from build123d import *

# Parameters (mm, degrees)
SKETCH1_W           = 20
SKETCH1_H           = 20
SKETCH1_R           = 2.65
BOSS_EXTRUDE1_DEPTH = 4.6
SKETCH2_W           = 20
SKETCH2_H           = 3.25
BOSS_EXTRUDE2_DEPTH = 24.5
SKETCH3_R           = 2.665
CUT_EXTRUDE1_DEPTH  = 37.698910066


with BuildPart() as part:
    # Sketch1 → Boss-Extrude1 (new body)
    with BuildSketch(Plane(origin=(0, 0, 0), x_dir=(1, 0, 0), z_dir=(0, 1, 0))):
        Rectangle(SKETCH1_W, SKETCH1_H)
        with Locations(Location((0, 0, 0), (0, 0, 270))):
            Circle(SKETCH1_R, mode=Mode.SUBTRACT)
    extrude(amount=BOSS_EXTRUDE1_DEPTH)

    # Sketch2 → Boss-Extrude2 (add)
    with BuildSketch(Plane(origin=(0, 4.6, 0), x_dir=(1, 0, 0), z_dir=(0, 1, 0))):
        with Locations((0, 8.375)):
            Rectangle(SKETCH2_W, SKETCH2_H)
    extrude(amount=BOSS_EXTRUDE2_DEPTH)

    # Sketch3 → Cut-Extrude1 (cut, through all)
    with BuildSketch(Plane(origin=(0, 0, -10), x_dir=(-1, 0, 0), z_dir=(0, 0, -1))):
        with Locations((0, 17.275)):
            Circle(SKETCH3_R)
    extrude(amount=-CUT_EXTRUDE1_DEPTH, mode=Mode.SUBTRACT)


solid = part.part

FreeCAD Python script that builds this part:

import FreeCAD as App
import Part
import Sketcher
Q = App.Units.Quantity

doc = App.newDocument("Part")
body = doc.addObject("PartDesign::Body", "Body")

# Sketch on XZ plane
sketch1 = body.newObject("Sketcher::SketchObject", "Sketch")
sketch1.AttachmentSupport = (doc.getObject("XZ_Plane"), [""])
sketch1.MapMode = "FlatFace"
sketch1.addGeometry([
    Part.LineSegment(App.Vector(-10, -10, 0), App.Vector(-10, 10, 0)),  # 0
    Part.LineSegment(App.Vector(-10, 10, 0), App.Vector(10, 10, 0)),  # 1
    Part.LineSegment(App.Vector(10, 10, 0), App.Vector(10, -10, 0)),  # 2
    Part.LineSegment(App.Vector(10, -10, 0), App.Vector(-10, -10, 0)),  # 3
    Part.Circle(App.Vector(0, 0, 0), App.Vector(0, 0, 1), 2.65),  # 4
], False)
sketch1.addConstraint([
    Sketcher.Constraint("Coincident", 0, 2, 1, 1),
    Sketcher.Constraint("Coincident", 1, 2, 2, 1),
    Sketcher.Constraint("Coincident", 2, 2, 3, 1),
    Sketcher.Constraint("Coincident", 3, 2, 0, 1),
    Sketcher.Constraint("Vertical", 0),
    Sketcher.Constraint("Horizontal", 1),
    Sketcher.Constraint("Vertical", 2),
    Sketcher.Constraint("Horizontal", 3),
    Sketcher.Constraint("Coincident", 4, 3, -1, 1),
    Sketcher.Constraint("Symmetric", 0, 2, 2, 2, -1, 1),
    Sketcher.Constraint("Equal", 3, 0),
    Sketcher.Constraint("Diameter", 4, Q("5.3 mm")),
    Sketcher.Constraint("DistanceX", 1, 1, 1, 2, Q("20 mm")),
])
pad1 = body.newObject("PartDesign::Pad", "Pad")
pad1.Profile = sketch1
pad1.Length = 4.6
pad1.Reversed = True

# Sketch on XZ plane
sketch2 = body.newObject("Sketcher::SketchObject", "Sketch001")
sketch2.AttachmentSupport = (doc.getObject("XZ_Plane"), [""])
sketch2.MapMode = "FlatFace"
sketch2.AttachmentOffset = App.Placement(App.Vector(0, 0, -4.6), App.Rotation())
sketch2.addGeometry([
    Part.LineSegment(App.Vector(-10, -10, 0), App.Vector(-10, -6.75, 0)),
    Part.LineSegment(App.Vector(-10, -6.75, 0), App.Vector(10, -6.75, 0)),
    Part.LineSegment(App.Vector(10, -6.75, 0), App.Vector(10, -10, 0)),
    Part.LineSegment(App.Vector(10, -10, 0), App.Vector(-10, -10, 0)),
], False)
sketch2.addConstraint([
    Sketcher.Constraint("Coincident", 0, 2, 1, 1),
    Sketcher.Constraint("Coincident", 1, 2, 2, 1),
    Sketcher.Constraint("Coincident", 2, 2, 3, 1),
    Sketcher.Constraint("Coincident", 3, 2, 0, 1),
    Sketcher.Constraint("Vertical", 0),
    Sketcher.Constraint("Horizontal", 1),
    Sketcher.Constraint("Vertical", 2),
    Sketcher.Constraint("Horizontal", 3),
    Sketcher.Constraint("DistanceX", 1, 1, 1, 2, Q("20 mm")),
    Sketcher.Constraint("DistanceX", 0, 2, -1, 1, Q("10 mm")),
    Sketcher.Constraint("DistanceY", 2, 2, -1, 1, Q("10 mm")),
    Sketcher.Constraint("DistanceY", 0, 1, 0, 2, Q("3.25 mm")),
])
pad2 = body.newObject("PartDesign::Pad", "Pad001")
pad2.Profile = sketch2
pad2.Length = 24.5
pad2.Reversed = True

# Sketch on XY plane
sketch3 = body.newObject("Sketcher::SketchObject", "Sketch002")
sketch3.AttachmentSupport = (doc.getObject("XY_Plane"), [""])
sketch3.MapMode = "FlatFace"
sketch3.AttachmentOffset = App.Placement(App.Vector(0, 0, -10), App.Rotation())
sketch3.addGeometry(Part.Circle(App.Vector(0, 17.275, 0), App.Vector(0, 0, 1), 2.665), False)
sketch3.addConstraint([
    Sketcher.Constraint("PointOnObject", 0, 3, -2),
    Sketcher.Constraint("Diameter", 0, Q("5.33 mm")),
    Sketcher.Constraint("DistanceY", -1, 1, 0, 3, Q("17.275 mm")),
])
pocket1 = body.newObject("PartDesign::Pocket", "Pocket")
pocket1.Profile = sketch3
pocket1.Type = "ThroughAll"
pocket1.Reversed = True

doc.recompute()
